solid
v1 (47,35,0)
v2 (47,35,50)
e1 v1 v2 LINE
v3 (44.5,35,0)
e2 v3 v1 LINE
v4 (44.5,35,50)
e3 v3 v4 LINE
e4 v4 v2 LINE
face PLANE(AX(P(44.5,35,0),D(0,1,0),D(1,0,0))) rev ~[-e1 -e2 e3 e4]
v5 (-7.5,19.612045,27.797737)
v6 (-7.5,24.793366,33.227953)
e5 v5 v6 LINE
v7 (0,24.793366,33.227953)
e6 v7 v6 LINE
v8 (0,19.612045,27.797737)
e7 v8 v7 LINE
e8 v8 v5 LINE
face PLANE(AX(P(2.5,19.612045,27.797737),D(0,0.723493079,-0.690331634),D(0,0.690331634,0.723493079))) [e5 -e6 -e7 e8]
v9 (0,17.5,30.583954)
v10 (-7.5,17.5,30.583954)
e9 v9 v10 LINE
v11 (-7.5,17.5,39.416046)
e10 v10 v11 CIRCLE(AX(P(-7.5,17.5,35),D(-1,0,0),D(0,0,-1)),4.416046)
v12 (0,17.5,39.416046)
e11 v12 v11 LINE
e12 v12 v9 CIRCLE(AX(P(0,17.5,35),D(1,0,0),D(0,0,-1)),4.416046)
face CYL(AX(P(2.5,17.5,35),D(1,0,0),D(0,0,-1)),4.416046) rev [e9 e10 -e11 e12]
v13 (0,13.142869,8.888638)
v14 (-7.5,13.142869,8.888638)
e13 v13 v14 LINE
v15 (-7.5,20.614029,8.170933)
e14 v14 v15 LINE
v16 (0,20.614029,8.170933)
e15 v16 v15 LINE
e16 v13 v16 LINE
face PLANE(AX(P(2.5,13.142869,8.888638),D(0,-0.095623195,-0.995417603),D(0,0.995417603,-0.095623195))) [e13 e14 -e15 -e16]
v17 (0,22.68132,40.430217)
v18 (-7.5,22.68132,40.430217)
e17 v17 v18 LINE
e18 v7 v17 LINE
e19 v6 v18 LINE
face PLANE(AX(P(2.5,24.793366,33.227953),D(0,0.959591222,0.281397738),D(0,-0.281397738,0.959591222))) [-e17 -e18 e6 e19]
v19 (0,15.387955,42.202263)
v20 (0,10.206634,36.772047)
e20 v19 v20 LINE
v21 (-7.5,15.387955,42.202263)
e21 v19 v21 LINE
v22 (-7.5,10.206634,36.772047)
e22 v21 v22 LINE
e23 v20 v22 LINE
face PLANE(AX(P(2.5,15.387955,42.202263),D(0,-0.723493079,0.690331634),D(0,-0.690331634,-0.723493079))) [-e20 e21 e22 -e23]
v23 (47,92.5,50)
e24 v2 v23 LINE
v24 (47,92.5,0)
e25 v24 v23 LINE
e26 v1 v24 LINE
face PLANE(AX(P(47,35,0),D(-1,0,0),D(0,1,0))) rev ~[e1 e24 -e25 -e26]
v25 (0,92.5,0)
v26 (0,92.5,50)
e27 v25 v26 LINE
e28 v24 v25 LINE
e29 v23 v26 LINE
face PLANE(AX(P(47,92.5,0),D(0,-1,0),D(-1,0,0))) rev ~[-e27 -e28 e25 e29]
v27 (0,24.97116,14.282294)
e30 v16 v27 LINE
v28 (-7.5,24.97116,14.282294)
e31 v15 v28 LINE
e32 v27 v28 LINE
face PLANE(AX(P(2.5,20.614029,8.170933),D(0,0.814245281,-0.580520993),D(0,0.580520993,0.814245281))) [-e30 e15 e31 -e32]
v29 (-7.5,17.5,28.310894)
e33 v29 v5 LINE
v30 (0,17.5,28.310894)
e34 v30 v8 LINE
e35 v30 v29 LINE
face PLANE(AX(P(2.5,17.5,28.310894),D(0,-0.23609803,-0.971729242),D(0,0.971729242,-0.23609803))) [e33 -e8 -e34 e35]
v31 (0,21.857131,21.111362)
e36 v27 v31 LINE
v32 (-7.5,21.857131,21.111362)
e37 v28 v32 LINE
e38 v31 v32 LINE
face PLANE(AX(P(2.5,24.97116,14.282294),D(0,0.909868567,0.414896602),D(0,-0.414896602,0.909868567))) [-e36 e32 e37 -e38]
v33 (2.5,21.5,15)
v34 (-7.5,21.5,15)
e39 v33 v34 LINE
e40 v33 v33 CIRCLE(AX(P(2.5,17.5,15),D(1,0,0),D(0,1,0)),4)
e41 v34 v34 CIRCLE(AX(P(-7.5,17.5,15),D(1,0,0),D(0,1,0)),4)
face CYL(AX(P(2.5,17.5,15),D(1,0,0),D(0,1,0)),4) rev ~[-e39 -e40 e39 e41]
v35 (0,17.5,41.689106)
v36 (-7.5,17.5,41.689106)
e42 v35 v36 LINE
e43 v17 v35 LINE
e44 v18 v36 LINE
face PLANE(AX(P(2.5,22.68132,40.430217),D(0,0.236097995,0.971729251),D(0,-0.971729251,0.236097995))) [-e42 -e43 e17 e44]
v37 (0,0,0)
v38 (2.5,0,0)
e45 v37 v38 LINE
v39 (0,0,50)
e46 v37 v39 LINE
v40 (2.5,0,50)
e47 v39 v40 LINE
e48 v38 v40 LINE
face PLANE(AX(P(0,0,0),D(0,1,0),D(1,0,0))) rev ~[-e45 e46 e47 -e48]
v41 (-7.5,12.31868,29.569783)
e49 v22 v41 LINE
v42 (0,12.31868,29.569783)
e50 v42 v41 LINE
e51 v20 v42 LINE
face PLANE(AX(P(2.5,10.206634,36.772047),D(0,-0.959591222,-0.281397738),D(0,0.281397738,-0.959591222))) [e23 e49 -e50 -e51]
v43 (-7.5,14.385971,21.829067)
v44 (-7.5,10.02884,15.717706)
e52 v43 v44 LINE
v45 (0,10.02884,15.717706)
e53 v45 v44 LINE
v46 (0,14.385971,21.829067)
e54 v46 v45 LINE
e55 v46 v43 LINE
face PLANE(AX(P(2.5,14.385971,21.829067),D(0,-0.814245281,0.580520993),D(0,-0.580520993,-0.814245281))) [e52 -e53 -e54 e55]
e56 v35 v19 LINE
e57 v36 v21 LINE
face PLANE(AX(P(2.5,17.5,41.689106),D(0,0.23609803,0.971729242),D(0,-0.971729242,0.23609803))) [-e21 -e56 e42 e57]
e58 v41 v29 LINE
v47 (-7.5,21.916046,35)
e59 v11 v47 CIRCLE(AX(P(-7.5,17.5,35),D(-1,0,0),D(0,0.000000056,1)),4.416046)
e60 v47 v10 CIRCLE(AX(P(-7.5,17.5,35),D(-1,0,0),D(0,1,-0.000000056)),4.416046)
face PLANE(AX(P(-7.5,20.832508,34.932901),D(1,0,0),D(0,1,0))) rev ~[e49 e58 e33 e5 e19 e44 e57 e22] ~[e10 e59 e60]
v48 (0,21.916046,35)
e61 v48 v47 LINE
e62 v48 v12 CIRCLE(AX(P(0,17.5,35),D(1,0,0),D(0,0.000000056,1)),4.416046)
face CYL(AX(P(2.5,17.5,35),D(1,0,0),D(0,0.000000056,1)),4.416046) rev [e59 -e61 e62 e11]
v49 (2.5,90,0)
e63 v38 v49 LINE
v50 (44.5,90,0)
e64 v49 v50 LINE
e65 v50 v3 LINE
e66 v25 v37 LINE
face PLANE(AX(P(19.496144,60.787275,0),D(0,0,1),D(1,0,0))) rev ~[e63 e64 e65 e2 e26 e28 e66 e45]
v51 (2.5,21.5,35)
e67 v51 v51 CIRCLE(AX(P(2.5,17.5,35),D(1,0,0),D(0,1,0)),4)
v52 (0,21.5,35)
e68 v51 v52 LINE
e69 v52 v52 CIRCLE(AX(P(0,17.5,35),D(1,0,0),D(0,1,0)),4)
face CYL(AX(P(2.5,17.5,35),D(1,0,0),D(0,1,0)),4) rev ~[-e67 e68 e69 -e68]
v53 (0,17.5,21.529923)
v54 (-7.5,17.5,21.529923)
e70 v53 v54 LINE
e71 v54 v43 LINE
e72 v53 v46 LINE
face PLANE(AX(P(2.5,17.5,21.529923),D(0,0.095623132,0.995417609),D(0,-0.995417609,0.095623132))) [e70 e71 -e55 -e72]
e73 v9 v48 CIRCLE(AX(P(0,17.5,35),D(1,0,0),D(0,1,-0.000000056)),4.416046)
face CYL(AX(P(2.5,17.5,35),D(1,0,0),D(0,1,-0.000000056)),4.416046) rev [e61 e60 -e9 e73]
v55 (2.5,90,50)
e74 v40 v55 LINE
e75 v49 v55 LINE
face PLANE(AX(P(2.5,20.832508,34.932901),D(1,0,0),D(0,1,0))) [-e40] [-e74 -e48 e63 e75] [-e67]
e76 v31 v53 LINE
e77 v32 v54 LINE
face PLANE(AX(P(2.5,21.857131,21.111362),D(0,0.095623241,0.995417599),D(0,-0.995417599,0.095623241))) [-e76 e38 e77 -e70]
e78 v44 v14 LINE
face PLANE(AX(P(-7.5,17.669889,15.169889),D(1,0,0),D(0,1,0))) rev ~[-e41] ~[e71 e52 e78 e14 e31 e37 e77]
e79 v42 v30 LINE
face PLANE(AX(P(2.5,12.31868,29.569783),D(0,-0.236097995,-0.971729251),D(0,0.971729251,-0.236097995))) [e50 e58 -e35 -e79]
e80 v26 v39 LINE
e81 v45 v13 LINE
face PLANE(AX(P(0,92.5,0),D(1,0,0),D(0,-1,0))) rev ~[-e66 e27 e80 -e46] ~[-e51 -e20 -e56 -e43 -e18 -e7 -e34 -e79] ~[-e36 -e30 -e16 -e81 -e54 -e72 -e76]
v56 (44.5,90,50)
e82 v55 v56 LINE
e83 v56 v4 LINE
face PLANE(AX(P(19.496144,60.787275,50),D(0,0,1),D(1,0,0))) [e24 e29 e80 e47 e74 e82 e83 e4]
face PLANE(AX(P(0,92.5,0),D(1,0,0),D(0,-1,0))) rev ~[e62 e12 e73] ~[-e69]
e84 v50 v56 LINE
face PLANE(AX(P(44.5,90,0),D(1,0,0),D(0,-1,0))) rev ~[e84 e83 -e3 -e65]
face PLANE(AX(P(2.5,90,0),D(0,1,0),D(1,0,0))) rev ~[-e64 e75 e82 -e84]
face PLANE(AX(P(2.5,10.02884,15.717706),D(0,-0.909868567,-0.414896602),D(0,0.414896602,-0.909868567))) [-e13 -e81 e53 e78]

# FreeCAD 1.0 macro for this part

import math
import FreeCAD as App
import Part
import Sketcher
from FreeCAD import Vector
Q = App.Units.Quantity


def add_polygon(sketch, points):
    """Adds a closed chain of lines whose ends are joined by coincident constraints."""
    first, n = sketch.GeometryCount, len(points)
    for a, b in zip(points, points[1:] + points[:1]):
        sketch.addGeometry(Part.LineSegment(App.Vector(*a, 0), App.Vector(*b, 0)), False)
    for i in range(n):
        sketch.addConstraint(Sketcher.Constraint("Coincident", first + i, 2, first + (i + 1) % n, 1))

doc = App.newDocument("Part")
params = doc.addObject("Spreadsheet::Sheet", "Params")
for row, (alias, value) in enumerate([
    ("sketch1_width", "42 mm"),
    ("sketch1_width2", "47 mm"),
    ("sketch1_height", "90 mm"),
    ("sketch1_height2", "55 mm"),
    ("sketch1_height3", "92.5 mm"),
    ("pad1_length", "50 mm"),
    ("pad2_length", "10 mm"),
    ("sketch3_diameter", "8 mm"),
    ("pocket1_length", "15 mm"),
], start=1):
    params.set(f"A{row}", alias)
    params.set(f"B{row}", "=" + value)
    params.setAlias(f"B{row}", alias)

body = doc.addObject("PartDesign::Body", "Body")

# Sketch on XY plane
sketch1 = body.newObject("Sketcher::SketchObject", "Sketch")
sketch1.AttachmentSupport = (doc.getObject("XY_Plane"), [""])
sketch1.MapMode = "FlatFace"
add_polygon(sketch1, [(0, 92.5), (0, 0), (2.5, 0), (2.5, 90), (44.5, 90), (44.5, 35), (47, 35), (47, 92.5)])  # lines 0-7
sketch1.addConstraint([
    Sketcher.Constraint("Vertical", 0),
    Sketcher.Constraint("Horizontal", 1),
    Sketcher.Constraint("Vertical", 2),
    Sketcher.Constraint("Horizontal", 3),
    Sketcher.Constraint("Vertical", 4),
    Sketcher.Constraint("Horizontal", 5),
    Sketcher.Constraint("Vertical", 6),
    Sketcher.Constraint("Horizontal", 7),
    Sketcher.Constraint("Coincident", 0, 2, -1, 1),
    Sketcher.Constraint("Equal", 1, 5),
    Sketcher.Constraint("DistanceX", 3, 1, 3, 2, Q("42 mm")),
    Sketcher.Constraint("DistanceX", 7, 2, 7, 1, Q("47 mm")),
    Sketcher.Constraint("DistanceY", 2, 1, 2, 2, Q("90 mm")),
    Sketcher.Constraint("DistanceY", 4, 2, 4, 1, Q("55 mm")),
    Sketcher.Constraint("DistanceY", 0, 2, 0, 1, Q("92.5 mm")),
])
sketch1.setExpression("Constraints[18]", "Params.sketch1_width")
sketch1.setExpression("Constraints[19]", "Params.sketch1_width2")
sketch1.setExpression("Constraints[20]", "Params.sketch1_height")
sketch1.setExpression("Constraints[21]", "Params.sketch1_height2")
sketch1.setExpression("Constraints[22]", "Params.sketch1_height3")
pad1 = body.newObject("PartDesign::Pad", "Pad")
pad1.Profile = sketch1
pad1.setExpression("Length", "Params.pad1_length")

# Sketch on YZ plane
sketch2 = body.newObject("Sketcher::SketchObject", "Sketch001")
sketch2.AttachmentSupport = (doc.getObject("YZ_Plane"), [""])
sketch2.MapMode = "FlatFace"
sketch2.AttachmentOffset = App.Placement(Vector(0, 0, 2.5), App.Rotation())
add_polygon(sketch2, [(22.7, 40.4), (17.5, 41.7), (15.4, 42.2), (10.2, 36.8), (12.3, 29.6), (17.5, 28.3), (19.6, 27.8), (24.8, 33.2)])  # lines 0-7
sketch2.addGeometry(Part.ArcOfCircle(Part.Circle(Vector(17.5, 35, 0), Vector(0, 0, 1), 4.4), math.radians(0), math.radians(90)), False)  # 8
sketch2.addGeometry(Part.ArcOfCircle(Part.Circle(Vector(17.5, 35, 0), Vector(0, 0, 1), 4.4), math.radians(-90), math.radians(0)), False)  # 9
sketch2.addGeometry(Part.ArcOfCircle(Part.Circle(Vector(17.5, 35, 0), Vector(0, 0, 1), 4.4), math.radians(90), math.radians(270)), False)  # 10
add_polygon(sketch2, [(21.9, 21.1), (17.5, 21.5), (14.4, 21.8), (10, 15.7), (13.1, 8.9), (20.6, 8.2), (25, 14.3)])  # lines 11-17
sketch2.addGeometry(Part.ArcOfCircle(Part.Circle(Vector(17.5, 15, 0), Vector(0, 0, 1), 3.8), math.radians(0), math.radians(90)), False)  # 18
sketch2.addGeometry(Part.ArcOfCircle(Part.Circle(Vector(17.5, 15, 0), Vector(0, 0, 1), 3.8), math.radians(90), math.radians(360)), False)  # 19
sketch2.addConstraint([
    Sketcher.Constraint("Tangent", 8, 1, 9, 2),
    Sketcher.Constraint("Tangent", 9, 1, 10, 2),
    Sketcher.Constraint("Tangent", 10, 1, 8, 2),
    Sketcher.Constraint("Tangent", 18, 1, 19, 2),
    Sketcher.Constraint("Coincident", 19, 1, 18, 2),
    Sketcher.Constraint("Parallel", 0, 1),
    Sketcher.Constraint("Parallel", 1, 4),
    Sketcher.Constraint("Parallel", 4, 5),
    Sketcher.Constraint("Parallel", 2, 6),
    Sketcher.Constraint("Parallel", 3, 7),
    Sketcher.Constraint("Parallel", 11, 12),
    Sketcher.Constraint("Parallel", 12, 15),
    Sketcher.Constraint("Parallel", 13, 16),
    Sketcher.Constraint("Parallel", 14, 17),
    Sketcher.Constraint("Horizontal", 10, 3, 8, 1),
    Sketcher.Constraint("Horizontal", 19, 3, 18, 1),
    Sketcher.Constraint("Vertical", 10, 3, 18, 3),
    Sketcher.Constraint("Vertical", 19, 3, 0, 2),
    Sketcher.Constraint("Vertical", 0, 2, 4, 2),
    Sketcher.Constraint("Vertical", 4, 2, 9, 1),
    Sketcher.Constraint("Vertical", 9, 1, 10, 1),
    Sketcher.Constraint("Vertical", 10, 1, 11, 2),
    Sketcher.Constraint("Vertical", 11, 2, 19, 1),
    Sketcher.Constraint("Equal", 2, 3),
    Sketcher.Constraint("Equal", 0, 4),
    Sketcher.Constraint("Equal", 1, 5),
    Sketcher.Constraint("Equal", 7, 13),
    Sketcher.Constraint("Equal", 13, 14),
    Sketcher.Constraint("Equal", 14, 15),
    Sketcher.Constraint("Equal", 15, 16),
    Sketcher.Constraint("DistanceY", -1, 1, 8, 3, Q("35 mm")),
    Sketcher.Constraint("DistanceY", -1, 1, 18, 3, Q("15 mm")),
    Sketcher.Constraint("DistanceX", -1, 1, 8, 3, Q("17.5 mm")),
    Sketcher.Constraint("Radius", 19, Q("3.804212 mm")),
    Sketcher.Constraint("Radius", 8, Q("4.416046 mm")),
    Sketcher.Constraint("Distance", 0, Q("5.332061 mm")),
    Sketcher.Constraint("Distance", 1, Q("2.173491 mm")),
    Sketcher.Constraint("Distance", 11, Q("4.377189 mm")),
    Sketcher.Constraint("DistanceX", -1, 1, 3, 2, Q("12.31868 mm")),
    Sketcher.Constraint("DistanceX", -1, 1, 12, 2, Q("14.385971 mm")),
    Sketcher.Constraint("DistanceX", -1, 1, 13, 2, Q("10.02884 mm")),
    Sketcher.Constraint("DistanceX", -1, 1, 14, 2, Q("13.142869 mm")),
    Sketcher.Constraint("DistanceX", -1, 1, 15, 2, Q("20.614029 mm")),
    Sketcher.Constraint("DistanceY", -1, 1, 17, 2, Q("21.111362 mm")),
    Sketcher.Constraint("DistanceX", 2, 2, 1, 2, Q("5.181321 mm")),
    Sketcher.Constraint("DistanceY", 4, 2, 9, 1, Q("2.27306 mm")),
])
pad2 = body.newObject("PartDesign::Pad", "Pad001")
pad2.Profile = sketch2
pad2.setExpression("Length", "Params.pad2_length")
pad2.Reversed = True

# Sketch on YZ plane
sketch3 = body.newObject("Sketcher::SketchObject", "Sketch002")
sketch3.AttachmentSupport = (doc.getObject("YZ_Plane"), [""])
sketch3.MapMode = "FlatFace"
sketch3.AttachmentOffset = App.Placement(Vector(0, 0, 2.5), App.Rotation())
sketch3.addGeometry([
    Part.Circle(Vector(17.5, 35, 0), Vector(0, 0, 1), 4),
    Part.Circle(Vector(17.5, 15, 0), Vector(0, 0, 1), 4),
], False)
sketch3.addConstraint([
    Sketcher.Constraint("Equal", 0, 1),
    Sketcher.Constraint("Vertical", 0, 3, 1, 3),
    Sketcher.Constraint("Diameter", 0, Q("8 mm")),
    Sketcher.Constraint("DistanceY", -1, 1, 0, 3, Q("35 mm")),
    Sketcher.Constraint("DistanceY", -1, 1, 1, 3, Q("15 mm")),
    Sketcher.Constraint("DistanceX", -1, 1, 0, 3, Q("17.5 mm")),
])
sketch3.setExpression("Constraints[2]", "Params.sketch3_diameter")
pocket1 = body.newObject("PartDesign::Pocket", "Pocket")
pocket1.Profile = sketch3
pocket1.setExpression("Length", "Params.pocket1_length")

doc.recompute()
